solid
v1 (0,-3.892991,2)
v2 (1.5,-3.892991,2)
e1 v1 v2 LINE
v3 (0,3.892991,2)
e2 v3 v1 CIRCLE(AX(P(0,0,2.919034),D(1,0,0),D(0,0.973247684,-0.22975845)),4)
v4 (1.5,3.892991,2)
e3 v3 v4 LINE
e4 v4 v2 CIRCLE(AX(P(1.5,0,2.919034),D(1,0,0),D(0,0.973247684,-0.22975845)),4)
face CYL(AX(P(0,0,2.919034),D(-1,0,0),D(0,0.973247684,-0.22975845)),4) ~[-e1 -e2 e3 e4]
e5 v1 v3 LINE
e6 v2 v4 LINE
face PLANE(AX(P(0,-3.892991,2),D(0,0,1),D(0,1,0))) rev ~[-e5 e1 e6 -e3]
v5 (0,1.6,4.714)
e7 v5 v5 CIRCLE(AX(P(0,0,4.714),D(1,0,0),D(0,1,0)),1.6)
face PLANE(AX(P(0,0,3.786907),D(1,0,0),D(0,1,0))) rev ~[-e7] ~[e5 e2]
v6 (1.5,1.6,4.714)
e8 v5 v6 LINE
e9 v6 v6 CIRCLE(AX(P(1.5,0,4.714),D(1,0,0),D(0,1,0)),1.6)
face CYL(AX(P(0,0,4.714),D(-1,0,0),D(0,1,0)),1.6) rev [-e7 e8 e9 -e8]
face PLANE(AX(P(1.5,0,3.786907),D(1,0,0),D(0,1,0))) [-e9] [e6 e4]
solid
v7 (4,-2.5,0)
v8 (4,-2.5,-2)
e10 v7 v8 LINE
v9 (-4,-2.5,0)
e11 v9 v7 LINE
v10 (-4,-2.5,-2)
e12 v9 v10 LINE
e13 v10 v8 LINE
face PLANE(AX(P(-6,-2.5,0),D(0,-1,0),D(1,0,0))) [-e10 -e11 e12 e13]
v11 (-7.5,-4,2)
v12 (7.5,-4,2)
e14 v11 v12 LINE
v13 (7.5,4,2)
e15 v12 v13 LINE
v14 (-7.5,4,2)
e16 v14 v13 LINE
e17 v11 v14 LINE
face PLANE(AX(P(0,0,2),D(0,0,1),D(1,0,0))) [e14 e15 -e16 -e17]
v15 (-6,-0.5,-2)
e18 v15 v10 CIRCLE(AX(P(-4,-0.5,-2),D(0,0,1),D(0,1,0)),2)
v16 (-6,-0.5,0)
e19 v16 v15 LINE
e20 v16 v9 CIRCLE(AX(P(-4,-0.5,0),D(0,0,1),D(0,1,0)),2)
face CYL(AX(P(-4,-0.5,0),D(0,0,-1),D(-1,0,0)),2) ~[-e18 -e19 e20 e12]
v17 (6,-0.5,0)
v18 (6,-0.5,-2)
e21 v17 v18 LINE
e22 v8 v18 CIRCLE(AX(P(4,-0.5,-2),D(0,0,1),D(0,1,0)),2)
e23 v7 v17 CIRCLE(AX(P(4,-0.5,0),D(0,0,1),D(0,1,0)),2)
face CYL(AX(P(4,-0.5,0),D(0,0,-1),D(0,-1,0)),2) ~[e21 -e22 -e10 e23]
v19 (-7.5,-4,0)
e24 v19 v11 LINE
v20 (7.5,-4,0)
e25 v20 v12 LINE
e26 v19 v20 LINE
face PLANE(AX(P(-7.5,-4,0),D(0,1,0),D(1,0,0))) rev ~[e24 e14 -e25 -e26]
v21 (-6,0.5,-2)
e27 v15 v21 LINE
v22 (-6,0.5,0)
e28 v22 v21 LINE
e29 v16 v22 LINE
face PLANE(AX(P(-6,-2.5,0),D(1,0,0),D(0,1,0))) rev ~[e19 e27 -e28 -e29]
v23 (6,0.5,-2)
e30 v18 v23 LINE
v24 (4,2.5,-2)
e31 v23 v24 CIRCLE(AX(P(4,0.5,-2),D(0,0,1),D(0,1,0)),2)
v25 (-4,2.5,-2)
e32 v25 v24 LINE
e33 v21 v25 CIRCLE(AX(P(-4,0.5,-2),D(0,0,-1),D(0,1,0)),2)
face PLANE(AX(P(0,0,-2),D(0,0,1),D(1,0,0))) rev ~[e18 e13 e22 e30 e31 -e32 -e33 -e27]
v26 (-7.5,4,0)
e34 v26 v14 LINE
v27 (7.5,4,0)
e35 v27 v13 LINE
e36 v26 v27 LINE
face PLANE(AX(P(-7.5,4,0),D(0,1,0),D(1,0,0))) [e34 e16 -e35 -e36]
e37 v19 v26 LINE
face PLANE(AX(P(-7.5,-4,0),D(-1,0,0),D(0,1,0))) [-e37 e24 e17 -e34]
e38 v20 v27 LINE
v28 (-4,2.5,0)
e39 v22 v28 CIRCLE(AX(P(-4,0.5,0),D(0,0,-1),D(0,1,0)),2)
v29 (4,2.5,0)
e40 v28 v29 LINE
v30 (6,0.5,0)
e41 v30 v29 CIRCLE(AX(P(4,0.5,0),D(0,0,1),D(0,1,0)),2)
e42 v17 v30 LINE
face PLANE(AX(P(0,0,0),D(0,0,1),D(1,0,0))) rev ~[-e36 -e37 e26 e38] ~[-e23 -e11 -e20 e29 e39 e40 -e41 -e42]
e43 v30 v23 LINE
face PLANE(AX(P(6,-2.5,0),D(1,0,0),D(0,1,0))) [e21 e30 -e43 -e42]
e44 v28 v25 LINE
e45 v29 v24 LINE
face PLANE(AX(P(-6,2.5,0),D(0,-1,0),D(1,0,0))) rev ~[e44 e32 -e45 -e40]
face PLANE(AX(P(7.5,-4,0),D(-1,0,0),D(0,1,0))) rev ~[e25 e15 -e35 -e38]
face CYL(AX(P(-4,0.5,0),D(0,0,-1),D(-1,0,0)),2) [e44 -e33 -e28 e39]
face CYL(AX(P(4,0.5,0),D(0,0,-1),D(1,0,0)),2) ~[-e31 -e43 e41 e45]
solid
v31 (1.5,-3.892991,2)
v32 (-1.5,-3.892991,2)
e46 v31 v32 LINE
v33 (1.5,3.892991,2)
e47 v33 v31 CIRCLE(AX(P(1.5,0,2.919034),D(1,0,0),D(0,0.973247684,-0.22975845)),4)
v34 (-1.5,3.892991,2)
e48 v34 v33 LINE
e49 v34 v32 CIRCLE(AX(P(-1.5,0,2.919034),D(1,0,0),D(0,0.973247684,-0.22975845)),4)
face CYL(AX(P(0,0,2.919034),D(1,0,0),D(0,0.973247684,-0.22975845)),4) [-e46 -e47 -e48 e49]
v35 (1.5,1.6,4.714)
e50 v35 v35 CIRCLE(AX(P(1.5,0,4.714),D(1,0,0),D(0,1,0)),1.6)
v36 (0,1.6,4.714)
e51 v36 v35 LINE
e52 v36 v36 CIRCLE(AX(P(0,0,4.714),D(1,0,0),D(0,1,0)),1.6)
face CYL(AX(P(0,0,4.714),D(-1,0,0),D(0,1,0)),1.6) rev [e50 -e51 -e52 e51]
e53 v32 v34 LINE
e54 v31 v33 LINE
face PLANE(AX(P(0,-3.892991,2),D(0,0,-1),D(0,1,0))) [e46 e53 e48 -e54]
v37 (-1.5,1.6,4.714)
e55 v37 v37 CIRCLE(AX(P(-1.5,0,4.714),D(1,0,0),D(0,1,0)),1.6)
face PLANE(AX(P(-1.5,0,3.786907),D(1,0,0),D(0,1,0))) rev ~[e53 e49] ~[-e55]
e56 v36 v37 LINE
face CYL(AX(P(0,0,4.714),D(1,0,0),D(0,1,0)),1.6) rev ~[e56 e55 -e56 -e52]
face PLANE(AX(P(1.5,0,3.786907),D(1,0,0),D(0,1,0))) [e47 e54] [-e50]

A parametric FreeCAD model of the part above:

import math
import FreeCAD as App
import Part
import Sketcher


def edges_at(feature, points):
    """Names of the edges that pass closest to the given points."""
    edges = feature.Shape.Edges
    near = lambda p: min(range(len(edges)), key=lambda i: edges[i].distToShape(Part.Vertex(*p))[0])
    return sorted({f"Edge{near(p) + 1}" for p in points})

doc = App.newDocument("Part")
body = doc.addObject("PartDesign::Body", "Body")

sketch1 = body.newObject("Sketcher::SketchObject", "Sketch")
sketch1.AttachmentSupport = (doc.getObject("XY_Plane"), [""])
sketch1.MapMode = "FlatFace"
sketch1.addGeometry([
    Part.LineSegment(App.Vector(-6, 2, 0), App.Vector(-6, -2, 0)),
    Part.LineSegment(App.Vector(-6, -2, 0), App.Vector(6, -2, 0)),
    Part.LineSegment(App.Vector(6, -2, 0), App.Vector(6, 2, 0)),
    Part.LineSegment(App.Vector(6, 2, 0), App.Vector(-6, 2, 0)),
], False)
sketch1.addConstraint([
    Sketcher.Constraint("Coincident", 0, 2, 1, 1),
    Sketcher.Constraint("Coincident", 1, 2, 2, 1),
    Sketcher.Constraint("Coincident", 2, 2, 3, 1),
    Sketcher.Constraint("Coincident", 3, 2, 0, 1),
    Sketcher.Constraint("Vertical", 0),
    Sketcher.Constraint("Horizontal", 1),
    Sketcher.Constraint("Vertical", 2),
    Sketcher.Constraint("Horizontal", 3),
    Sketcher.Constraint("Symmetric", 0, 2, 2, 2, -1, 1),
    Sketcher.Constraint("DistanceX", 1, 1, 1, 2, 12.0),
    Sketcher.Constraint("DistanceY", 0, 2, 0, 1, 5.0),
])
pad1 = body.newObject("PartDesign::Pad", "Pad")
pad1.Profile = sketch1
pad1.Length = 2
pad1.Reversed = True
doc.recompute()

fillet = body.newObject("PartDesign::Fillet", "Fillet")
fillet.Base = (pad1, edges_at(pad1, [
    (6, 2.5, -1),
    (6, -2.5, -1),
    (-6, -2.5, -1),
    (-6, 2.5, -1),
]))
fillet.Radius = 2

sketch2 = body.newObject("Sketcher::SketchObject", "Sketch001")
sketch2.AttachmentSupport = (doc.getObject("XY_Plane"), [""])
sketch2.MapMode = "FlatFace"
sketch2.addGeometry([
    Part.LineSegment(App.Vector(-8, 4, 0), App.Vector(-8, -4, 0)),
    Part.LineSegment(App.Vector(-8, -4, 0), App.Vector(8, -4, 0)),
    Part.LineSegment(App.Vector(8, -4, 0), App.Vector(8, 4, 0)),
    Part.LineSegment(App.Vector(8, 4, 0), App.Vector(-8, 4, 0)),
], False)
sketch2.addConstraint([
    Sketcher.Constraint("Coincident", 0, 2, 1, 1),
    Sketcher.Constraint("Coincident", 1, 2, 2, 1),
    Sketcher.Constraint("Coincident", 2, 2, 3, 1),
    Sketcher.Constraint("Coincident", 3, 2, 0, 1),
    Sketcher.Constraint("Vertical", 0),
    Sketcher.Constraint("Horizontal", 1),
    Sketcher.Constraint("Vertical", 2),
    Sketcher.Constraint("Horizontal", 3),
    Sketcher.Constraint("Symmetric", 0, 2, 2, 2, -1, 1),
    Sketcher.Constraint("DistanceX", 1, 1, 1, 2, 15.0),
    Sketcher.Constraint("DistanceY", 0, 2, 0, 1, 8.0),
])
pad2 = body.newObject("PartDesign::Pad", "Pad001")
pad2.Profile = sketch2
pad2.Length = 2
body2 = doc.addObject("PartDesign::Body", "Body001")

sketch3 = body2.newObject("Sketcher::SketchObject", "Sketch002")
sketch3.AttachmentSupport = (doc.getObject("YZ_Plane001"), [""])
sketch3.MapMode = "FlatFace"
sketch3.addGeometry([
    Part.LineSegment(App.Vector(-3.9, 2, 0), App.Vector(3.9, 2, 0)),
    Part.ArcOfCircle(Part.Circle(App.Vector(0, 2.9, 0), App.Vector(0, 0, 1), 4), math.radians(-13), math.radians(193)),
], False)
sketch3.addConstraint([
    Sketcher.Constraint("Coincident", 0, 1, 1, 2),
    Sketcher.Constraint("Coincident", 1, 1, 0, 2),
    Sketcher.Constraint("Horizontal", 0),
    Sketcher.Constraint("PointOnObject", 1, 3, -2),
    Sketcher.Constraint("Radius", 1, 4.0),
    Sketcher.Constraint("DistanceY", -1, 1, 0, 1, 2.0),
    Sketcher.Constraint("DistanceX", 0, 1, 0, 2, 7.785981),
])
pad3 = body2.newObject("PartDesign::Pad", "Pad002")
pad3.Profile = sketch3
pad3.Length = 1.5
body3 = doc.addObject("PartDesign::Body", "Body002")

sketch4 = body3.newObject("Sketcher::SketchObject", "Sketch003")
sketch4.AttachmentSupport = (doc.getObject("YZ_Plane002"), [""])
sketch4.MapMode = "FlatFace"
sketch4.addGeometry([
    Part.LineSegment(App.Vector(-3.9, 2, 0), App.Vector(3.9, 2, 0)),
    Part.ArcOfCircle(Part.Circle(App.Vector(0, 2.9, 0), App.Vector(0, 0, 1), 4), math.radians(-13), math.radians(193)),
], False)
sketch4.addConstraint([
    Sketcher.Constraint("Coincident", 0, 1, 1, 2),
    Sketcher.Constraint("Coincident", 1, 1, 0, 2),
    Sketcher.Constraint("Horizontal", 0),
    Sketcher.Constraint("PointOnObject", 1, 3, -2),
    Sketcher.Constraint("Radius", 1, 4.0),
    Sketcher.Constraint("DistanceY", -1, 1, 0, 1, 2.0),
    Sketcher.Constraint("DistanceX", 0, 1, 0, 2, 7.785981),
])
pad4 = body3.newObject("PartDesign::Pad", "Pad003")
pad4.Profile = sketch4
pad4.Type = "TwoLengths"
pad4.Length = 1.5
pad4.Length2 = 1.5
body4 = doc.addObject("PartDesign::Body", "Body003")

sketch5 = body4.newObject("Sketcher::SketchObject", "Sketch004")
sketch5.AttachmentSupport = (doc.getObject("YZ_Plane003"), [""])
sketch5.MapMode = "FlatFace"
sketch5.addGeometry(Part.Circle(App.Vector(0, 4.7, 0), App.Vector(0, 0, 1), 1.6), False)
sketch5.addConstraint([
    Sketcher.Constraint("PointOnObject", 0, 3, -2),
    Sketcher.Constraint("Diameter", 0, 3.2),
    Sketcher.Constraint("DistanceY", -1, 1, 0, 3, 4.714),
])
pad5 = body4.newObject("PartDesign::Pad", "Pad004")
pad5.Profile = sketch5
pad5.Type = "TwoLengths"
pad5.Length = 1.5
pad5.Length2 = 1.5
pad5.Reversed = True
doc.recompute()

body5 = doc.addObject("PartDesign::Body", "Body004")
body5.BaseFeature = body4
boolean = body2.newObject("PartDesign::Boolean", "Boolean")
boolean.Type = "Cut"
boolean.addObjects([body5])
doc.recompute()

boolean2 = body3.newObject("PartDesign::Boolean", "Boolean001")
boolean2.Type = "Cut"
boolean2.addObjects([body4])

doc.recompute()
